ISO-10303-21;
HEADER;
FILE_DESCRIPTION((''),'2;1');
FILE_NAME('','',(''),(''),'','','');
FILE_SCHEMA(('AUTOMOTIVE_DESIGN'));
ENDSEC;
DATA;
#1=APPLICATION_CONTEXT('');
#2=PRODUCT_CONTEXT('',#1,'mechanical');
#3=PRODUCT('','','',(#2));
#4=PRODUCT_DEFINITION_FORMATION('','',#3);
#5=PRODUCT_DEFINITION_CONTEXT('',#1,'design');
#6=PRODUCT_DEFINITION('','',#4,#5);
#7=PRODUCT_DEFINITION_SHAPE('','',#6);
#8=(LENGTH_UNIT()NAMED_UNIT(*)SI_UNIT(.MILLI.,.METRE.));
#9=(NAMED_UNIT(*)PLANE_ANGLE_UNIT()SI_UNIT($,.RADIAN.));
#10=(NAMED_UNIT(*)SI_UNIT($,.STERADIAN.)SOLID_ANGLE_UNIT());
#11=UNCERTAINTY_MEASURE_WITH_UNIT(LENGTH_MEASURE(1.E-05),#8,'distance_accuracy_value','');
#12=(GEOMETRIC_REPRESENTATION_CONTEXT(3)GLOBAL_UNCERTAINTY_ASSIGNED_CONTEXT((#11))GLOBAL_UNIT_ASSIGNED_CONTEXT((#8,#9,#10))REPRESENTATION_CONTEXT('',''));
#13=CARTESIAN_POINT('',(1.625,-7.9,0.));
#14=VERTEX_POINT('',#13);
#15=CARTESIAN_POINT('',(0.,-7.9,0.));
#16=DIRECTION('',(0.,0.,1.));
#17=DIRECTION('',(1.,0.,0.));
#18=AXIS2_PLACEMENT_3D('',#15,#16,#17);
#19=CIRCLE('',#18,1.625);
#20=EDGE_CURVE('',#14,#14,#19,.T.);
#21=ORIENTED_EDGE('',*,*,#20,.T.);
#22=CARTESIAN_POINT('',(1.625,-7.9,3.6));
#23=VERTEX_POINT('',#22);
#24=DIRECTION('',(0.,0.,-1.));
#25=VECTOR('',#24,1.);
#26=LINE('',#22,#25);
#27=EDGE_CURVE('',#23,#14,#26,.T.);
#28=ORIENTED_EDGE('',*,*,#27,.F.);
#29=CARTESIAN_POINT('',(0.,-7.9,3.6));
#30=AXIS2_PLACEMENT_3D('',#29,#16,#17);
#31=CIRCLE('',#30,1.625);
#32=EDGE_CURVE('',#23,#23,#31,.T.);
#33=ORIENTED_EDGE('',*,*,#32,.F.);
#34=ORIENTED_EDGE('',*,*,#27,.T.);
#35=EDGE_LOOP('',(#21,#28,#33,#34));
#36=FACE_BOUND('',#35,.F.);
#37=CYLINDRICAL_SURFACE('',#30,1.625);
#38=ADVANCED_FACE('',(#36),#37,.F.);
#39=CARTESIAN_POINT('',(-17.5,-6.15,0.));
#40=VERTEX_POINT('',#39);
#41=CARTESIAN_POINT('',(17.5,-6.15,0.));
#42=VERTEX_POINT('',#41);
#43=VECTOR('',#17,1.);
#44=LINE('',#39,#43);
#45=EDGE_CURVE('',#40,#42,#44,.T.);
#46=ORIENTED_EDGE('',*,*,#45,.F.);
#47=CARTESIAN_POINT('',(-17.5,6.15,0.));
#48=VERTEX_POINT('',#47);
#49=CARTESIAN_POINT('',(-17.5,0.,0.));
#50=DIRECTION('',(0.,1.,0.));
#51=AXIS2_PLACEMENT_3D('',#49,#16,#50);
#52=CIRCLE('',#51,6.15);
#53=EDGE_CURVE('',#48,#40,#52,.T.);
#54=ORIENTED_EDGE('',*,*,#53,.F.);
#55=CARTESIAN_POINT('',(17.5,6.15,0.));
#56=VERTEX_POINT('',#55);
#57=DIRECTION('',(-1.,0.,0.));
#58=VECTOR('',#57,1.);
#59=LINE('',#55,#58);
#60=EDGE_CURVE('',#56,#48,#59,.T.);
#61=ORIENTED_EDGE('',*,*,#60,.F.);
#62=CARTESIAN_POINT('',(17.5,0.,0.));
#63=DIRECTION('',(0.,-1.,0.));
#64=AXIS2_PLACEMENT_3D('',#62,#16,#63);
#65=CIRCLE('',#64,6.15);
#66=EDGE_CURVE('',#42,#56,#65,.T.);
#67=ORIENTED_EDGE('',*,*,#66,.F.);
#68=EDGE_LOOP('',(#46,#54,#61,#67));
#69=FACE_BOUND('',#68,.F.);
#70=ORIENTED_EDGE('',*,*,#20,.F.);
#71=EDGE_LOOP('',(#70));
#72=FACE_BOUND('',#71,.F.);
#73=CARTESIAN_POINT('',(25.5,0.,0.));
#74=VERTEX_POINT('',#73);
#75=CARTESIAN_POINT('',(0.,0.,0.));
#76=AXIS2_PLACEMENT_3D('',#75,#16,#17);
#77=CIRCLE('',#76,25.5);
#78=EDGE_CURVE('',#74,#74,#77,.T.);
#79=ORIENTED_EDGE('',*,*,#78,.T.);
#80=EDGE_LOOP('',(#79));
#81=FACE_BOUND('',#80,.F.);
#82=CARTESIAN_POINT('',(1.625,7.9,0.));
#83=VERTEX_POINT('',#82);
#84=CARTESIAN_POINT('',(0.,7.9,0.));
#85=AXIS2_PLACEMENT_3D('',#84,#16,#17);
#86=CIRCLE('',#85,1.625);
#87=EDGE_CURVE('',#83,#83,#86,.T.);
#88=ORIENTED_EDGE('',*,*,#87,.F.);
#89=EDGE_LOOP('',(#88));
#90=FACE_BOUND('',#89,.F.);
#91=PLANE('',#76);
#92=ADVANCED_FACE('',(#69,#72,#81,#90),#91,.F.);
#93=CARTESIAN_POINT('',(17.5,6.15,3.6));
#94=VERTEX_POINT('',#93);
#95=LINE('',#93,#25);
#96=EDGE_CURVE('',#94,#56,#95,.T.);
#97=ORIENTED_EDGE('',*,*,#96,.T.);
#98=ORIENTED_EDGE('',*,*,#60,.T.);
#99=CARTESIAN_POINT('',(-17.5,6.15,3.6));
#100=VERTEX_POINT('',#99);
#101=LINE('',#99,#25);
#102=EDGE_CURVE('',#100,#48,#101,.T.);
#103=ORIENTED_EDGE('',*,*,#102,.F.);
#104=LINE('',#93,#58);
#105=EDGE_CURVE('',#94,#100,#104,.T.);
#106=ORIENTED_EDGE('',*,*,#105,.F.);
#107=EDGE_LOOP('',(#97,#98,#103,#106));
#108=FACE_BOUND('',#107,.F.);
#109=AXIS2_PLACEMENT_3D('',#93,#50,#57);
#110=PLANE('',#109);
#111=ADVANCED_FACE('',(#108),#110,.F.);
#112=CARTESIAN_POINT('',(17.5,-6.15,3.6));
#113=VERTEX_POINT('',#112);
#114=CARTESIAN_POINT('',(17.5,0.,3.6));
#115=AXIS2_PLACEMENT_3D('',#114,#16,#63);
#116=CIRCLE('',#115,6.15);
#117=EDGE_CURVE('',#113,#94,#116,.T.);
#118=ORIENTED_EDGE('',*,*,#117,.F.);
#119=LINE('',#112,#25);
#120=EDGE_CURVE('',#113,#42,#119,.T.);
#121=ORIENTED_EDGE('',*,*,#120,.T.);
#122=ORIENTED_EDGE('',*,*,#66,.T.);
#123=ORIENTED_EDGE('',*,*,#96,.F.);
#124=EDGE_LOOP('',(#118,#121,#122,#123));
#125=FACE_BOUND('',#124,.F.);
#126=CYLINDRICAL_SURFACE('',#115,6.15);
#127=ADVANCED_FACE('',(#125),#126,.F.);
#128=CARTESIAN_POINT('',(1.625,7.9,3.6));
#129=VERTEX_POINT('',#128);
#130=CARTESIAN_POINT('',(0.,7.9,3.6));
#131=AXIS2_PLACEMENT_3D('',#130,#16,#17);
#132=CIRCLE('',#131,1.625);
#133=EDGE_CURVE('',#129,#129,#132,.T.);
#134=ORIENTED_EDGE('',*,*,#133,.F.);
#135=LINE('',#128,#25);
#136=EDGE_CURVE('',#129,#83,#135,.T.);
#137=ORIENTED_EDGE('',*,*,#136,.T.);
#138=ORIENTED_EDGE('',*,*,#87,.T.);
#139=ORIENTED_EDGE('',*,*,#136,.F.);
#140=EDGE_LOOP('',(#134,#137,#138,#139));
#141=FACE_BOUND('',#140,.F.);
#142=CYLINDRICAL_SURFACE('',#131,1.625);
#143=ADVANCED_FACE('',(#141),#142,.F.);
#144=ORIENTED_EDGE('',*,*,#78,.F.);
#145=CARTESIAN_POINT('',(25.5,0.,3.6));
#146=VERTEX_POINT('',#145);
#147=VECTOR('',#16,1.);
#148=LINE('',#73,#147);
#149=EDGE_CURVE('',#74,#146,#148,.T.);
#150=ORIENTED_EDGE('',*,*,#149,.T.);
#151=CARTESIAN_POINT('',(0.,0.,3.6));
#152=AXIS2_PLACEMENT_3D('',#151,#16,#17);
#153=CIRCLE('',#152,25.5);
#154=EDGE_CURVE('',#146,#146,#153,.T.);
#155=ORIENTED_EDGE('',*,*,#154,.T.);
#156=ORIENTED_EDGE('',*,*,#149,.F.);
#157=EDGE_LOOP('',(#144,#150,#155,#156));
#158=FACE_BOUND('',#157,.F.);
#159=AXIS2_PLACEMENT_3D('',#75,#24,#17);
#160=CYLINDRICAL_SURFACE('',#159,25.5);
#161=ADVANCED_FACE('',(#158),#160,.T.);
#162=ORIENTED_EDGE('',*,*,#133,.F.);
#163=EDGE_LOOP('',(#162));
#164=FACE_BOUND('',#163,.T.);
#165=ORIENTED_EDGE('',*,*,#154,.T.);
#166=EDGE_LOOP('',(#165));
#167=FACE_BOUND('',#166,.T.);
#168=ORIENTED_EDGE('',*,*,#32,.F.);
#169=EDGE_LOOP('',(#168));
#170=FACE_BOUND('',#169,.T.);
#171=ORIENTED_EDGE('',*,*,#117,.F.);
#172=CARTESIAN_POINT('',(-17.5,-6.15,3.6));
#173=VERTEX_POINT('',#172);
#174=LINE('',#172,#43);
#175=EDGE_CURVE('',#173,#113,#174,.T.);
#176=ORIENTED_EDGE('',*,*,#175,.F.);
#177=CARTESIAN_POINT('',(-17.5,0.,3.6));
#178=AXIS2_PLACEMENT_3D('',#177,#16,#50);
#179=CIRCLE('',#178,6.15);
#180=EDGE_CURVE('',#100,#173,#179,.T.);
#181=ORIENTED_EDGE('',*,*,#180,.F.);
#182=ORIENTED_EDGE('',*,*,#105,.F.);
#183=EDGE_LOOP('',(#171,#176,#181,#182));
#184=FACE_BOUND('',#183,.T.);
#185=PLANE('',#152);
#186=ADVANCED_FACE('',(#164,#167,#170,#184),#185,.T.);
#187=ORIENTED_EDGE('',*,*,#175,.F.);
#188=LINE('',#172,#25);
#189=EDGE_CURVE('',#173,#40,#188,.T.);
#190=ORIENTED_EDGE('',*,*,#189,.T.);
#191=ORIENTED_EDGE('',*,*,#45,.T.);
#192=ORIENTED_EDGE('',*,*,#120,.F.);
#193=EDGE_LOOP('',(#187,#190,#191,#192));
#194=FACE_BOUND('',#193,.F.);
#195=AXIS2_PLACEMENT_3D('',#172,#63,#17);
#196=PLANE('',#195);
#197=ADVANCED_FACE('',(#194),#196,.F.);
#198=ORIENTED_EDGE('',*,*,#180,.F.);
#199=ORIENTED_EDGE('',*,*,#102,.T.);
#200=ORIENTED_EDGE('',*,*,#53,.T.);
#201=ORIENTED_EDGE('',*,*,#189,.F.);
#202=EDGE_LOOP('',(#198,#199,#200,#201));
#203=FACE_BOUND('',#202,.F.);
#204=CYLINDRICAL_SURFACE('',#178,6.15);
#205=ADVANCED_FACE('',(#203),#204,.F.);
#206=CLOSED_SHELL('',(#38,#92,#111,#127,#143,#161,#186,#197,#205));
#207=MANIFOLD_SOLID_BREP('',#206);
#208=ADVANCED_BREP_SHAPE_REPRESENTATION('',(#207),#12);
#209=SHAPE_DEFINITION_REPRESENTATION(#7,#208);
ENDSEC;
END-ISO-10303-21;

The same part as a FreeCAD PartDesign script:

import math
import FreeCAD as App
import Part
import Sketcher

V = App.Vector

doc = App.newDocument("Part")
body = doc.addObject("PartDesign::Body", "Body")

sketch1 = body.newObject("Sketcher::SketchObject", "Sketch")
sketch1.AttachmentSupport = (doc.getObject("XY_Plane"), [""])
sketch1.MapMode = "FlatFace"
sketch1.addGeometry(Part.Circle(V(0, 0, 0), V(0, 0, 1), 25.5), False)
sketch1.addConstraint(Sketcher.Constraint("Coincident", 0, 3, -1, 1))
sketch1.addConstraint(Sketcher.Constraint("Diameter", 0, 51.0))
pad1 = body.newObject("PartDesign::Pad", "Pad")
pad1.Profile = sketch1
pad1.Length = 3.6

sketch2 = body.newObject("Sketcher::SketchObject", "Sketch001")
sketch2.AttachmentSupport = (doc.getObject("XY_Plane"), [""])
sketch2.MapMode = "FlatFace"
sketch2.AttachmentOffset = App.Placement(V(0, 0, 3.6), App.Rotation())
sketch2.addGeometry(Part.ArcOfCircle(Part.Circle(V(17.5, 0, 0), V(0, 0, 1), 6.15), math.radians(-90), math.radians(90)), False)
sketch2.addGeometry(Part.LineSegment(V(17.5, 6.15, 0), V(-17.5, 6.15, 0)), False)
sketch2.addGeometry(Part.ArcOfCircle(Part.Circle(V(-17.5, 0, 0), V(0, 0, 1), 6.15), math.radians(90), math.radians(270)), False)
sketch2.addGeometry(Part.LineSegment(V(-17.5, -6.15, 0), V(17.5, -6.15, 0)), False)
sketch2.addConstraint(Sketcher.Constraint("Tangent", 0, 2, 1, 1))
sketch2.addConstraint(Sketcher.Constraint("Tangent", 1, 2, 2, 1))
sketch2.addConstraint(Sketcher.Constraint("Tangent", 2, 2, 3, 1))
sketch2.addConstraint(Sketcher.Constraint("Tangent", 3, 2, 0, 1))
sketch2.addConstraint(Sketcher.Constraint("Horizontal", 1))
sketch2.addConstraint(Sketcher.Constraint("Horizontal", 3))
sketch2.addConstraint(Sketcher.Constraint("Symmetric", 0, 3, 2, 3, -1, 1))
sketch2.addConstraint(Sketcher.Constraint("Radius", 0, 6.15))
sketch2.addConstraint(Sketcher.Constraint("DistanceX", -1, 1, 0, 3, 17.5))
pocket1 = body.newObject("PartDesign::Pocket", "Pocket")
pocket1.Profile = sketch2
pocket1.Length = 3.6

sketch3 = body.newObject("Sketcher::SketchObject", "Sketch002")
sketch3.AttachmentSupport = (doc.getObject("XY_Plane"), [""])
sketch3.MapMode = "FlatFace"
sketch3.AttachmentOffset = App.Placement(V(0, 0, 3.6), App.Rotation())
sketch3.addGeometry(Part.Circle(V(0, -7.9, 0), V(0, 0, 1), 1.625), False)
sketch3.addGeometry(Part.Circle(V(0, 7.9, 0), V(0, 0, 1), 1.625), False)
sketch3.addConstraint(Sketcher.Constraint("Equal", 0, 1))
sketch3.addConstraint(Sketcher.Constraint("Symmetric", 0, 3, 1, 3, -1, 1))
sketch3.addConstraint(Sketcher.Constraint("PointOnObject", 0, 3, -2))
sketch3.addConstraint(Sketcher.Constraint("Diameter", 0, 3.25))
sketch3.addConstraint(Sketcher.Constraint("DistanceY", 0, 3, -1, 1, 7.9))
pocket2 = body.newObject("PartDesign::Pocket", "Pocket001")
pocket2.Profile = sketch3
pocket2.Length = 10

doc.recompute()
